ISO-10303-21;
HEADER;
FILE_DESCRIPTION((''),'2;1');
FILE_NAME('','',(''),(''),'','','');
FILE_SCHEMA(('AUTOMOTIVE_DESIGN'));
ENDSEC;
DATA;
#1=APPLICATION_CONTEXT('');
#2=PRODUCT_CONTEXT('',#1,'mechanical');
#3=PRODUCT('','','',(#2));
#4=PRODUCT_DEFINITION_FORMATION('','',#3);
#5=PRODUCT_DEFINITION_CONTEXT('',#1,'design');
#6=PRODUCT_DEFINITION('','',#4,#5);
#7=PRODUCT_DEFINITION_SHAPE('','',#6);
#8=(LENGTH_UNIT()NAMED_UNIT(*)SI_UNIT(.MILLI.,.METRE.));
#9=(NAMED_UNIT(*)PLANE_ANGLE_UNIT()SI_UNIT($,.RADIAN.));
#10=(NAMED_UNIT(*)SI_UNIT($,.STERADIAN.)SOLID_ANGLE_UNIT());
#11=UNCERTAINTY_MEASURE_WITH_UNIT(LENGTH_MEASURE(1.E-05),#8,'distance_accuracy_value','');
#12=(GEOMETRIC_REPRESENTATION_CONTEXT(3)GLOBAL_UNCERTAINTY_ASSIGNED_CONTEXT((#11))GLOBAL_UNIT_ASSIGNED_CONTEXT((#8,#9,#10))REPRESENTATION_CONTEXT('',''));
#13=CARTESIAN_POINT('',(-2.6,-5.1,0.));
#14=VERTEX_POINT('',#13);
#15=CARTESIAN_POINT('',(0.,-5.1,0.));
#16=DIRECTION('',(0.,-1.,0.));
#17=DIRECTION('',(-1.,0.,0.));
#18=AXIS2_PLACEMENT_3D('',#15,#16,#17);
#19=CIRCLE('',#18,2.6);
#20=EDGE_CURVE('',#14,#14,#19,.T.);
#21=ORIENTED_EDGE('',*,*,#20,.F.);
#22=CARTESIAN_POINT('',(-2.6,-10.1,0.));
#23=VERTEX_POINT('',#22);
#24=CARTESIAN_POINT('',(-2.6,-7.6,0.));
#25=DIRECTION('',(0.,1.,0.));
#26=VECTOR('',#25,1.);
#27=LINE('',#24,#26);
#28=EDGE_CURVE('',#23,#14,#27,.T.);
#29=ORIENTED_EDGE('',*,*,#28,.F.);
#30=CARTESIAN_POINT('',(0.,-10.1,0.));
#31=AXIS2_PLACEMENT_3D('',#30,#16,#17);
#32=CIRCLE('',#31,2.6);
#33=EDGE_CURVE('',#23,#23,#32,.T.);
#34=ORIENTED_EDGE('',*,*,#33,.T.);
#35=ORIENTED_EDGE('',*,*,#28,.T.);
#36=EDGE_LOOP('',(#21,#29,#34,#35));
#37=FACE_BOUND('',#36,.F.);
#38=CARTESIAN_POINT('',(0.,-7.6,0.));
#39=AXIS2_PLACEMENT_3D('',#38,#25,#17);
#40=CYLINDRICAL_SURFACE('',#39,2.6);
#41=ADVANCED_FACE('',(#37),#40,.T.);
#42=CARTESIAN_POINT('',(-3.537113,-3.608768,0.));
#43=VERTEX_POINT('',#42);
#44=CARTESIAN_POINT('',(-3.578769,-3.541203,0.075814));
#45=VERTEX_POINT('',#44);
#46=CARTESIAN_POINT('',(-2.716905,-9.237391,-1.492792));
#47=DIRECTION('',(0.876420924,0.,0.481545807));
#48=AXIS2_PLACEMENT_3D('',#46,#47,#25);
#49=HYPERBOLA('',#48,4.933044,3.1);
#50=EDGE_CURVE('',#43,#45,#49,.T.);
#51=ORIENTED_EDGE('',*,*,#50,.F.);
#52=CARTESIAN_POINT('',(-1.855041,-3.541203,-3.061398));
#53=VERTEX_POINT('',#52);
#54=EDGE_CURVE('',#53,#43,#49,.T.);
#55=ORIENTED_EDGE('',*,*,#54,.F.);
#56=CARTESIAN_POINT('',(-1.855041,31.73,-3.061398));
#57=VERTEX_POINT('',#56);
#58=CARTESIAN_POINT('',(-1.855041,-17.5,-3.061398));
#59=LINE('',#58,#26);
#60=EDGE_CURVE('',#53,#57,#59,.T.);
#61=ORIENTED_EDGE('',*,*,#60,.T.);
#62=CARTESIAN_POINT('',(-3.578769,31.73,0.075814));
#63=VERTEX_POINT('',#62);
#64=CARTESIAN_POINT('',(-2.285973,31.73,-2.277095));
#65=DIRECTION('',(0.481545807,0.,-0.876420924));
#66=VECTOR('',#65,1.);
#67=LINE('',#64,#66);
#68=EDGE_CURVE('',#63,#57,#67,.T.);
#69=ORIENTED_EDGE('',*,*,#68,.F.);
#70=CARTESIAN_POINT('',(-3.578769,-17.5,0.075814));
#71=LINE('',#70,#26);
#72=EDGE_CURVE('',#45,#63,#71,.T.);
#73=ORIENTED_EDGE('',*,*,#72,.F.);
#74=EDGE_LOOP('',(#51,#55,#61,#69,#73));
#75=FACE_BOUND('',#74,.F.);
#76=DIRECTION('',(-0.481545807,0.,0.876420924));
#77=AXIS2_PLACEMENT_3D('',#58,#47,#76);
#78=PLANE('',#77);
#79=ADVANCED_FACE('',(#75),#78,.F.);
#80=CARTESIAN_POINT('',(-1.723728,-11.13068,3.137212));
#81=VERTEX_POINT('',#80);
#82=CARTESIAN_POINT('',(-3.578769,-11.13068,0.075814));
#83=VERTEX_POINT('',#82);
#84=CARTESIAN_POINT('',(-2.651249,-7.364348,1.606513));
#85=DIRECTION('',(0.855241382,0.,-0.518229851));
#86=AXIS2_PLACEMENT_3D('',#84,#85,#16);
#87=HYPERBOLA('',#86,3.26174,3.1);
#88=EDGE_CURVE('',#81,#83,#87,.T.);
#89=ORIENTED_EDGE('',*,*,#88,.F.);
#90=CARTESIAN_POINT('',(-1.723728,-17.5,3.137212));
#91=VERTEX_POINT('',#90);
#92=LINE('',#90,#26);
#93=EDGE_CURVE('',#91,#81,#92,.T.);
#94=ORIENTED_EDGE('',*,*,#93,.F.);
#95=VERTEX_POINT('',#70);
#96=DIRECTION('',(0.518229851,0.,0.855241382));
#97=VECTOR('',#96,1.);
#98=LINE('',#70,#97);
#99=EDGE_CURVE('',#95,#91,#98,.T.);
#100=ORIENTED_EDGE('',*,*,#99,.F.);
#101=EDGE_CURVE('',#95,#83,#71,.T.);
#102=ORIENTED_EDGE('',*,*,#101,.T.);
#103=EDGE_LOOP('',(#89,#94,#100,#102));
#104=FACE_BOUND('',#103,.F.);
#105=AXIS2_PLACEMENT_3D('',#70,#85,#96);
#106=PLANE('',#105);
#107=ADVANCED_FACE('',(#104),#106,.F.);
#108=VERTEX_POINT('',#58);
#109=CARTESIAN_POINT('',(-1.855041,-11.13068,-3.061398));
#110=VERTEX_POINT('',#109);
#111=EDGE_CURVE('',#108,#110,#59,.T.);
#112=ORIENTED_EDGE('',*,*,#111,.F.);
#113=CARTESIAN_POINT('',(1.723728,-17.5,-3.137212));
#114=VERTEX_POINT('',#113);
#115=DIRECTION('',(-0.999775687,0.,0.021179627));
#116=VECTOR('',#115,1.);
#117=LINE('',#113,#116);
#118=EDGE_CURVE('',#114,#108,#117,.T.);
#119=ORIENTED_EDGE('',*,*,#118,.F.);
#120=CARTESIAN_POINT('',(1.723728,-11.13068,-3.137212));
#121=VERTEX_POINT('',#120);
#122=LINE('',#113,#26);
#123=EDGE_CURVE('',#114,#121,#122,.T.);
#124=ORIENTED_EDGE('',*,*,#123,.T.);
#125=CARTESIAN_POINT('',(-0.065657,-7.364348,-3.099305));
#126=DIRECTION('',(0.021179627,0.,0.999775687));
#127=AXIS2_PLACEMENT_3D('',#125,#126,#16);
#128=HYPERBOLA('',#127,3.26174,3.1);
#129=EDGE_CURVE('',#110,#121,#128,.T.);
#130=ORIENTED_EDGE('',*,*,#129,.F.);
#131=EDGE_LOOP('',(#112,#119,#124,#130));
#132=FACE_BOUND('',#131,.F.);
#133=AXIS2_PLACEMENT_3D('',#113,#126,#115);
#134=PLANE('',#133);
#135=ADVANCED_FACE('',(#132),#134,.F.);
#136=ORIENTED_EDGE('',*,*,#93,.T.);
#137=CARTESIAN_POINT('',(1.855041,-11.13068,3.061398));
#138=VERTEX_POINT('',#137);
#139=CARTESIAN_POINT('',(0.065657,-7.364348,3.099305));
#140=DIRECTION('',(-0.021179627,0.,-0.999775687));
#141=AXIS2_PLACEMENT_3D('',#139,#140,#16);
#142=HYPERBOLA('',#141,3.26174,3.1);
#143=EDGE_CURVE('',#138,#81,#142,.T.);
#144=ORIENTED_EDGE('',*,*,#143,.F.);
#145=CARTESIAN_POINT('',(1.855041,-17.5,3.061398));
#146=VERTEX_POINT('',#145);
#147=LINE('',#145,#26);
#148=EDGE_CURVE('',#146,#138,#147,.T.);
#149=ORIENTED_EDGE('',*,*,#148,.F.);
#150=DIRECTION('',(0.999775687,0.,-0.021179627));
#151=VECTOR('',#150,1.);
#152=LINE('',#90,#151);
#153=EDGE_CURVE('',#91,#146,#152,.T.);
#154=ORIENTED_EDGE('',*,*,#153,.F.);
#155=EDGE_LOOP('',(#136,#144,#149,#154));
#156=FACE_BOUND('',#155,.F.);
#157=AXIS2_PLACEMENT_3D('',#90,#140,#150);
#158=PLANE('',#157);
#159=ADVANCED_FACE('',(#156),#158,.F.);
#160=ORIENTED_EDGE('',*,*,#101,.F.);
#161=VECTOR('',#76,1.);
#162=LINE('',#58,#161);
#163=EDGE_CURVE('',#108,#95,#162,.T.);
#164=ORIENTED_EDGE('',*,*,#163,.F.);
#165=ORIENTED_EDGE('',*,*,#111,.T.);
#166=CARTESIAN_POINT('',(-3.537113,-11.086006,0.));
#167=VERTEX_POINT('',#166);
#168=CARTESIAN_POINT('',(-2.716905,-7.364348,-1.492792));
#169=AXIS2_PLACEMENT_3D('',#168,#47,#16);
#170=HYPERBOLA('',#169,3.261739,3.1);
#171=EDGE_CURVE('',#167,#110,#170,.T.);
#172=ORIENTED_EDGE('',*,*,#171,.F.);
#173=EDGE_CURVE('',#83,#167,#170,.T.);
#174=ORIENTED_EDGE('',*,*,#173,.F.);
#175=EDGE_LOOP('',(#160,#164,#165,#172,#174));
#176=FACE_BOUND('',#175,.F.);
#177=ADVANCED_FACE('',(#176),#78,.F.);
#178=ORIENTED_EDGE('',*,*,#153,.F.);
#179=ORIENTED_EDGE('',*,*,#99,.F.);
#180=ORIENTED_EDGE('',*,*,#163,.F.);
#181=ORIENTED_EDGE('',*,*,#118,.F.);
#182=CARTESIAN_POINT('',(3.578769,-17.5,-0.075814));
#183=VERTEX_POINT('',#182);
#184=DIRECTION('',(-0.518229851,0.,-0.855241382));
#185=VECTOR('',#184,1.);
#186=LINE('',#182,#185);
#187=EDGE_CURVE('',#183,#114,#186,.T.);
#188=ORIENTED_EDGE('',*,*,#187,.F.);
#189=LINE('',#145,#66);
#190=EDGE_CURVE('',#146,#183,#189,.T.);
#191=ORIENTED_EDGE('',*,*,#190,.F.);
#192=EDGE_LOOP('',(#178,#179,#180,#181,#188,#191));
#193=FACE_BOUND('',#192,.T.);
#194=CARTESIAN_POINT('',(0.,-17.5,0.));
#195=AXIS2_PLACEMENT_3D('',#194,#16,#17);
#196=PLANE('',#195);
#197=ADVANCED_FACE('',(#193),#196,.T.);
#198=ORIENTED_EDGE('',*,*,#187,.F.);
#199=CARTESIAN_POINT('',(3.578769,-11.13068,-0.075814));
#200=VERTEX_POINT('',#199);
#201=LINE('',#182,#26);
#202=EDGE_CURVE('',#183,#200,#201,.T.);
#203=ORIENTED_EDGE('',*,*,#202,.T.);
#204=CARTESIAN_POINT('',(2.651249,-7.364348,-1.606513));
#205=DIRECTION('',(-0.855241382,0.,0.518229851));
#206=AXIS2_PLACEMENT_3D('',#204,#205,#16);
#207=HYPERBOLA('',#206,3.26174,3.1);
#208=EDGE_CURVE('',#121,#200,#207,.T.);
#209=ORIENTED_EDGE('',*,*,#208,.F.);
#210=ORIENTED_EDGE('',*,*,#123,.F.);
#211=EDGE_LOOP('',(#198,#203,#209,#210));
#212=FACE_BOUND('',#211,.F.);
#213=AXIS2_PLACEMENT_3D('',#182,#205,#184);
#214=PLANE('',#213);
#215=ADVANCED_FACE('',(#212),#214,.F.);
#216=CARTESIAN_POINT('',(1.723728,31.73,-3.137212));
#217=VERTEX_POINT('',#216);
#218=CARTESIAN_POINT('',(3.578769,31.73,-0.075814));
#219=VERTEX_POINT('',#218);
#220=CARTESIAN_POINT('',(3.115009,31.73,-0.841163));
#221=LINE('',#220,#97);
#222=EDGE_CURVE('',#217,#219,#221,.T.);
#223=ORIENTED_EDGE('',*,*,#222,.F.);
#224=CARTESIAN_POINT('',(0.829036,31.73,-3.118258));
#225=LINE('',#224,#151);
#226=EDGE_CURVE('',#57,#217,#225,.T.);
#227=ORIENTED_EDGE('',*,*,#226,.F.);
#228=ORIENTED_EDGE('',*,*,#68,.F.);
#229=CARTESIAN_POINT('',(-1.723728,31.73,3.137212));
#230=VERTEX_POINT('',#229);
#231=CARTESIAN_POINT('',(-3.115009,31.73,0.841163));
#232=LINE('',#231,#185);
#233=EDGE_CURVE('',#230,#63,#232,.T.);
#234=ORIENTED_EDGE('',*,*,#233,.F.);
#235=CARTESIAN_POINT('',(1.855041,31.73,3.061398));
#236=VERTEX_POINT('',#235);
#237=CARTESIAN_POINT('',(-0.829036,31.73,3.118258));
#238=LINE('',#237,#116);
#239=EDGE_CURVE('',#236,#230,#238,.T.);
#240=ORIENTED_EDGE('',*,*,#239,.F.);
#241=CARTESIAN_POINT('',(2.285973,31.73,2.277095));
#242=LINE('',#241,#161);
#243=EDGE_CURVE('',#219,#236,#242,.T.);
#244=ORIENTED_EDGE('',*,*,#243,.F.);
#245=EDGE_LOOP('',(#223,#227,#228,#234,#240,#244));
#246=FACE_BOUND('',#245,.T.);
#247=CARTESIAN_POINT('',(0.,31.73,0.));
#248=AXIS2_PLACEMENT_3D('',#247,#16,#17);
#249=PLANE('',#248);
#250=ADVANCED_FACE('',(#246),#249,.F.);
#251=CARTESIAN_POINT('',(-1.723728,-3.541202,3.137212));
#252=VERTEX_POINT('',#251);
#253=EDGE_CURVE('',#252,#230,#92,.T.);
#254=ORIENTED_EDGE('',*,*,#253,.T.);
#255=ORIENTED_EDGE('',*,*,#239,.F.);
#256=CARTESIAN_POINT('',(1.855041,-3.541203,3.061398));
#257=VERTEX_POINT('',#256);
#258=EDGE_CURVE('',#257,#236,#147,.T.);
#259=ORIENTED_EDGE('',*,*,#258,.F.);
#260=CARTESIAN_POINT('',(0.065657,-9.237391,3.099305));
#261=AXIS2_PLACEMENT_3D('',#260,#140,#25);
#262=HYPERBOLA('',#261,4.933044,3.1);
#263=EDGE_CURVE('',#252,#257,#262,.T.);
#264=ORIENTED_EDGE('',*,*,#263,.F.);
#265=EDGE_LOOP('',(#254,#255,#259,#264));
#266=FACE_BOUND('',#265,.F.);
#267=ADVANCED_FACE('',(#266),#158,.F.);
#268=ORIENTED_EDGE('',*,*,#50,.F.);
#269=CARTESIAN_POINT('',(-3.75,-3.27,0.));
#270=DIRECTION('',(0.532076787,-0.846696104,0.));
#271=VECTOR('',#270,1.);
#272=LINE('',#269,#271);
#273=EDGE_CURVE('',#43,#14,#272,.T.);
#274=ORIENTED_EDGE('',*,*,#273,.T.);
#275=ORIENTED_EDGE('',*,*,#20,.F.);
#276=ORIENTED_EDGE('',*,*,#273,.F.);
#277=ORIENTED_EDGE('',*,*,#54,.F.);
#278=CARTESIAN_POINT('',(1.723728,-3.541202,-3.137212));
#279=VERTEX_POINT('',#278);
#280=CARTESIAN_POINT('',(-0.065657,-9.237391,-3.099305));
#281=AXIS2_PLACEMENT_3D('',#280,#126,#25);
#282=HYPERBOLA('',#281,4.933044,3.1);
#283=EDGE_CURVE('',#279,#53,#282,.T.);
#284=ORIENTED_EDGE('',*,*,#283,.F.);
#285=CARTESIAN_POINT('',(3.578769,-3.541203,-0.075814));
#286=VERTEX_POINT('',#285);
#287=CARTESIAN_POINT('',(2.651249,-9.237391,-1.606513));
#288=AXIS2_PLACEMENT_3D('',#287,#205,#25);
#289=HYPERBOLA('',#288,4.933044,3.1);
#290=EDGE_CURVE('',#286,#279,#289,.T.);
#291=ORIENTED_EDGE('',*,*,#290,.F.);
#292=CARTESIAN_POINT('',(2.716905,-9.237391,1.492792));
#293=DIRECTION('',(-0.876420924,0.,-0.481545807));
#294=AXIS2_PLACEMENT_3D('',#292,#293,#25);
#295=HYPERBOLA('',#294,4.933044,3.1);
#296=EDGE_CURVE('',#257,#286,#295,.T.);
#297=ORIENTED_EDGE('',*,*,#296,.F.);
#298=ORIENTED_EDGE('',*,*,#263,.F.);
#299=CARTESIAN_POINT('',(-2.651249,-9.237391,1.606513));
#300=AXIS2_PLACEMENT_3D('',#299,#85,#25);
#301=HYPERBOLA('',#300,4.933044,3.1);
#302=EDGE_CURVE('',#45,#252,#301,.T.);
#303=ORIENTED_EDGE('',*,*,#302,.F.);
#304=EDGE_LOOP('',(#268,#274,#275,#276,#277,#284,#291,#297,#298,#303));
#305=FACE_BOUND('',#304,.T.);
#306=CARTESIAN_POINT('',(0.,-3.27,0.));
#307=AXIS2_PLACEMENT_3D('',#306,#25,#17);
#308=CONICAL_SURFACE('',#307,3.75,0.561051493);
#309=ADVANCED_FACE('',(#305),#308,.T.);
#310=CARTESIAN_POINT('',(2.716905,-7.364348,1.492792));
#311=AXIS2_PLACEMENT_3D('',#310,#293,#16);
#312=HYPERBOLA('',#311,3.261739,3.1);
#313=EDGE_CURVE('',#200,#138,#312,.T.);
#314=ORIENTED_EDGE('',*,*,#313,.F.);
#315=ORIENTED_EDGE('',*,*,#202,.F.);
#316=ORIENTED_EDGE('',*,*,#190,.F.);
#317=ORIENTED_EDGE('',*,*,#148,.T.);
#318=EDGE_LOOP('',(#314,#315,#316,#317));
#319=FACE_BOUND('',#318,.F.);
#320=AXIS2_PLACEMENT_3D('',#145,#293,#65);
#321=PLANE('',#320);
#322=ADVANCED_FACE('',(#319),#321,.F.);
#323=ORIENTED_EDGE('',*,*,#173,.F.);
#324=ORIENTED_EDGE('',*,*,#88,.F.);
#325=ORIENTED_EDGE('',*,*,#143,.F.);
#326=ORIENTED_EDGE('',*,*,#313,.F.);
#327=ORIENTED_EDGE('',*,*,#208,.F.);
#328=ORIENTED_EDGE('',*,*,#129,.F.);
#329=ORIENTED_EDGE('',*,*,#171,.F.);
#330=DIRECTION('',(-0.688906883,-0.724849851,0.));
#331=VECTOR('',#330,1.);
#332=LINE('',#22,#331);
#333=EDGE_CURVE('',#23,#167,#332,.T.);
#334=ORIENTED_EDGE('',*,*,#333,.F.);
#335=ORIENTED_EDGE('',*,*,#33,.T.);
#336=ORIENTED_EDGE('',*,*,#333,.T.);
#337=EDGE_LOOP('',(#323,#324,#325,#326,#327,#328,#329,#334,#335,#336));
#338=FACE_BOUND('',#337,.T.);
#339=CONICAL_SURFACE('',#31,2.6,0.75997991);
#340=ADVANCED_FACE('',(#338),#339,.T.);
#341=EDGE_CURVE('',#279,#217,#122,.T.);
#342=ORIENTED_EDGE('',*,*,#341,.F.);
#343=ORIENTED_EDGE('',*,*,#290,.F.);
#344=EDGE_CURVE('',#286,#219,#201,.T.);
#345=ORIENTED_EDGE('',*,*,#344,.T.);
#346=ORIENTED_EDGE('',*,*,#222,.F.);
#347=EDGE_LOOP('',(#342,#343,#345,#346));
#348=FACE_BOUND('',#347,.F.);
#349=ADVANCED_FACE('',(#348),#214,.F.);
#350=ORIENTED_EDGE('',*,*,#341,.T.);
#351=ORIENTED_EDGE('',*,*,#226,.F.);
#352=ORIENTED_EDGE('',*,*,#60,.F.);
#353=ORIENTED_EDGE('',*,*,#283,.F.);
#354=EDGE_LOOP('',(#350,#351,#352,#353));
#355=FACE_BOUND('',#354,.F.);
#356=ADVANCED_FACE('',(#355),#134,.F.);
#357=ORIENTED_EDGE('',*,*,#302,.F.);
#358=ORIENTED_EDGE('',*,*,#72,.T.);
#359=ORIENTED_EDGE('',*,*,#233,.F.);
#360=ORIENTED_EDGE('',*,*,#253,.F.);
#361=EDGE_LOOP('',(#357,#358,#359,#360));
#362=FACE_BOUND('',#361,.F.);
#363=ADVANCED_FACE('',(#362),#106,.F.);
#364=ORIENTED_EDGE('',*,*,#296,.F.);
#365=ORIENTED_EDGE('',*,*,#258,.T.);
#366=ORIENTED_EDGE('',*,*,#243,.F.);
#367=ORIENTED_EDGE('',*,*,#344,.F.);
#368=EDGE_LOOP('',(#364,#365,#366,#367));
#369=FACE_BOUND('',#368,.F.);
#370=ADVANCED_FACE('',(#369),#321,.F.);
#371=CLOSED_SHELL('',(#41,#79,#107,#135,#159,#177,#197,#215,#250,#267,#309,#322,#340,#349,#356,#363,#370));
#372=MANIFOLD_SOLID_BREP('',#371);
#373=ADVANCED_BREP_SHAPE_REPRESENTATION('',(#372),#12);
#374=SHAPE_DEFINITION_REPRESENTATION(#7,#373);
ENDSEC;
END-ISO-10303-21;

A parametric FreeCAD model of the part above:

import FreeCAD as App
import Part
import Sketcher
Q = App.Units.Quantity


def add_polygon(sketch, points):
    """Adds a closed chain of lines whose ends are joined by coincident constraints."""
    first, n = sketch.GeometryCount, len(points)
    for a, b in zip(points, points[1:] + points[:1]):
        sketch.addGeometry(Part.LineSegment(App.Vector(*a, 0), App.Vector(*b, 0)), False)
    for i in range(n):
        sketch.addConstraint(Sketcher.Constraint("Coincident", first + i, 2, first + (i + 1) % n, 1))

doc = App.newDocument("Part")
body = doc.addObject("PartDesign::Body", "Body")

# Sketch on XY plane
sketch1 = body.newObject("Sketcher::SketchObject", "Sketch")
sketch1.AttachmentSupport = (doc.getObject("XY_Plane"), [""])
sketch1.MapMode = "FlatFace"
add_polygon(sketch1, [(0, 31.7), (-3.8, 31.7), (-3.8, -3.3), (-2.6, -5.1), (-2.6, -10.1), (-3.8, -11.3), (-3.8, -17.5), (0, -17.5)])  # lines 0-7
sketch1.addConstraint([
    Sketcher.Constraint("Horizontal", 0),
    Sketcher.Constraint("Vertical", 1),
    Sketcher.Constraint("Vertical", 3),
    Sketcher.Constraint("Vertical", 5),
    Sketcher.Constraint("Horizontal", 6),
    Sketcher.Constraint("Vertical", 7),
    Sketcher.Constraint("PointOnObject", 6, 2, -2),
    Sketcher.Constraint("Vertical", 1, 2, 4, 2),
    Sketcher.Constraint("DistanceY", 1, 2, 1, 1, Q("35 mm")),
    Sketcher.Constraint("DistanceY", 3, 2, 3, 1, Q("5 mm")),
    Sketcher.Constraint("DistanceX", 0, 2, 0, 1, Q("3.75 mm")),
    Sketcher.Constraint("DistanceY", 5, 2, 5, 1, Q("6.19 mm")),
    Sketcher.Constraint("DistanceY", 7, 1, 7, 2, Q("49.23 mm")),
    Sketcher.Constraint("DistanceX", 2, 2, -1, 1, Q("2.6 mm")),
    Sketcher.Constraint("DistanceY", 2, 2, -1, 1, Q("5.1 mm")),
    Sketcher.Constraint("DistanceY", 5, 2, -1, 1, Q("17.5 mm")),
])
revolution = body.newObject("PartDesign::Revolution", "Revolution")
revolution.Profile = sketch1
revolution.ReferenceAxis = (sketch1, ["V_Axis"])
revolution.Angle = 360

# Sketch on XZ plane
sketch2 = body.newObject("Sketcher::SketchObject", "Sketch001")
sketch2.AttachmentSupport = (doc.getObject("XZ_Plane"), [""])
sketch2.MapMode = "FlatFace"
sketch2.AttachmentOffset = App.Placement(App.Vector(0, 0, 17.5), App.Rotation())
sketch2.addGeometry(Part.Circle(App.Vector(0, 0, 0), App.Vector(0, 0, 1), 3.8), False)  # 0
add_polygon(sketch2, [(-1.9, -3.1), (-3.6, 0.1), (-1.7, 3.1), (1.9, 3.1), (3.6, -0.1), (1.7, -3.1)])  # lines 1-6
sketch2.addConstraint([
    Sketcher.Constraint("Coincident", 0, 3, -1, 1),
    Sketcher.Constraint("Symmetric", 1, 2, 4, 2, -1, 1),
    Sketcher.Constraint("Symmetric", 2, 2, 5, 2, -1, 1),
    Sketcher.Constraint("Symmetric", 3, 2, 6, 2, -1, 1),
    Sketcher.Constraint("Equal", 1, 2),
    Sketcher.Constraint("Equal", 2, 3),
    Sketcher.Constraint("Diameter", 0, Q("7.5 mm")),
    Sketcher.Constraint("DistanceY", -1, 1, 3, 2, Q("3.061398 mm")),
    Sketcher.Constraint("DistanceY", 1, 2, 2, 2, Q("3.061398 mm")),
    Sketcher.Constraint("Distance", 2, Q("3.579572 mm")),
    Sketcher.Constraint("DistanceX", 1, 2, -1, 1, Q("3.578769 mm")),
])
pocket1 = body.newObject("PartDesign::Pocket", "Pocket")
pocket1.Profile = sketch2
pocket1.Length = 65

doc.recompute()
